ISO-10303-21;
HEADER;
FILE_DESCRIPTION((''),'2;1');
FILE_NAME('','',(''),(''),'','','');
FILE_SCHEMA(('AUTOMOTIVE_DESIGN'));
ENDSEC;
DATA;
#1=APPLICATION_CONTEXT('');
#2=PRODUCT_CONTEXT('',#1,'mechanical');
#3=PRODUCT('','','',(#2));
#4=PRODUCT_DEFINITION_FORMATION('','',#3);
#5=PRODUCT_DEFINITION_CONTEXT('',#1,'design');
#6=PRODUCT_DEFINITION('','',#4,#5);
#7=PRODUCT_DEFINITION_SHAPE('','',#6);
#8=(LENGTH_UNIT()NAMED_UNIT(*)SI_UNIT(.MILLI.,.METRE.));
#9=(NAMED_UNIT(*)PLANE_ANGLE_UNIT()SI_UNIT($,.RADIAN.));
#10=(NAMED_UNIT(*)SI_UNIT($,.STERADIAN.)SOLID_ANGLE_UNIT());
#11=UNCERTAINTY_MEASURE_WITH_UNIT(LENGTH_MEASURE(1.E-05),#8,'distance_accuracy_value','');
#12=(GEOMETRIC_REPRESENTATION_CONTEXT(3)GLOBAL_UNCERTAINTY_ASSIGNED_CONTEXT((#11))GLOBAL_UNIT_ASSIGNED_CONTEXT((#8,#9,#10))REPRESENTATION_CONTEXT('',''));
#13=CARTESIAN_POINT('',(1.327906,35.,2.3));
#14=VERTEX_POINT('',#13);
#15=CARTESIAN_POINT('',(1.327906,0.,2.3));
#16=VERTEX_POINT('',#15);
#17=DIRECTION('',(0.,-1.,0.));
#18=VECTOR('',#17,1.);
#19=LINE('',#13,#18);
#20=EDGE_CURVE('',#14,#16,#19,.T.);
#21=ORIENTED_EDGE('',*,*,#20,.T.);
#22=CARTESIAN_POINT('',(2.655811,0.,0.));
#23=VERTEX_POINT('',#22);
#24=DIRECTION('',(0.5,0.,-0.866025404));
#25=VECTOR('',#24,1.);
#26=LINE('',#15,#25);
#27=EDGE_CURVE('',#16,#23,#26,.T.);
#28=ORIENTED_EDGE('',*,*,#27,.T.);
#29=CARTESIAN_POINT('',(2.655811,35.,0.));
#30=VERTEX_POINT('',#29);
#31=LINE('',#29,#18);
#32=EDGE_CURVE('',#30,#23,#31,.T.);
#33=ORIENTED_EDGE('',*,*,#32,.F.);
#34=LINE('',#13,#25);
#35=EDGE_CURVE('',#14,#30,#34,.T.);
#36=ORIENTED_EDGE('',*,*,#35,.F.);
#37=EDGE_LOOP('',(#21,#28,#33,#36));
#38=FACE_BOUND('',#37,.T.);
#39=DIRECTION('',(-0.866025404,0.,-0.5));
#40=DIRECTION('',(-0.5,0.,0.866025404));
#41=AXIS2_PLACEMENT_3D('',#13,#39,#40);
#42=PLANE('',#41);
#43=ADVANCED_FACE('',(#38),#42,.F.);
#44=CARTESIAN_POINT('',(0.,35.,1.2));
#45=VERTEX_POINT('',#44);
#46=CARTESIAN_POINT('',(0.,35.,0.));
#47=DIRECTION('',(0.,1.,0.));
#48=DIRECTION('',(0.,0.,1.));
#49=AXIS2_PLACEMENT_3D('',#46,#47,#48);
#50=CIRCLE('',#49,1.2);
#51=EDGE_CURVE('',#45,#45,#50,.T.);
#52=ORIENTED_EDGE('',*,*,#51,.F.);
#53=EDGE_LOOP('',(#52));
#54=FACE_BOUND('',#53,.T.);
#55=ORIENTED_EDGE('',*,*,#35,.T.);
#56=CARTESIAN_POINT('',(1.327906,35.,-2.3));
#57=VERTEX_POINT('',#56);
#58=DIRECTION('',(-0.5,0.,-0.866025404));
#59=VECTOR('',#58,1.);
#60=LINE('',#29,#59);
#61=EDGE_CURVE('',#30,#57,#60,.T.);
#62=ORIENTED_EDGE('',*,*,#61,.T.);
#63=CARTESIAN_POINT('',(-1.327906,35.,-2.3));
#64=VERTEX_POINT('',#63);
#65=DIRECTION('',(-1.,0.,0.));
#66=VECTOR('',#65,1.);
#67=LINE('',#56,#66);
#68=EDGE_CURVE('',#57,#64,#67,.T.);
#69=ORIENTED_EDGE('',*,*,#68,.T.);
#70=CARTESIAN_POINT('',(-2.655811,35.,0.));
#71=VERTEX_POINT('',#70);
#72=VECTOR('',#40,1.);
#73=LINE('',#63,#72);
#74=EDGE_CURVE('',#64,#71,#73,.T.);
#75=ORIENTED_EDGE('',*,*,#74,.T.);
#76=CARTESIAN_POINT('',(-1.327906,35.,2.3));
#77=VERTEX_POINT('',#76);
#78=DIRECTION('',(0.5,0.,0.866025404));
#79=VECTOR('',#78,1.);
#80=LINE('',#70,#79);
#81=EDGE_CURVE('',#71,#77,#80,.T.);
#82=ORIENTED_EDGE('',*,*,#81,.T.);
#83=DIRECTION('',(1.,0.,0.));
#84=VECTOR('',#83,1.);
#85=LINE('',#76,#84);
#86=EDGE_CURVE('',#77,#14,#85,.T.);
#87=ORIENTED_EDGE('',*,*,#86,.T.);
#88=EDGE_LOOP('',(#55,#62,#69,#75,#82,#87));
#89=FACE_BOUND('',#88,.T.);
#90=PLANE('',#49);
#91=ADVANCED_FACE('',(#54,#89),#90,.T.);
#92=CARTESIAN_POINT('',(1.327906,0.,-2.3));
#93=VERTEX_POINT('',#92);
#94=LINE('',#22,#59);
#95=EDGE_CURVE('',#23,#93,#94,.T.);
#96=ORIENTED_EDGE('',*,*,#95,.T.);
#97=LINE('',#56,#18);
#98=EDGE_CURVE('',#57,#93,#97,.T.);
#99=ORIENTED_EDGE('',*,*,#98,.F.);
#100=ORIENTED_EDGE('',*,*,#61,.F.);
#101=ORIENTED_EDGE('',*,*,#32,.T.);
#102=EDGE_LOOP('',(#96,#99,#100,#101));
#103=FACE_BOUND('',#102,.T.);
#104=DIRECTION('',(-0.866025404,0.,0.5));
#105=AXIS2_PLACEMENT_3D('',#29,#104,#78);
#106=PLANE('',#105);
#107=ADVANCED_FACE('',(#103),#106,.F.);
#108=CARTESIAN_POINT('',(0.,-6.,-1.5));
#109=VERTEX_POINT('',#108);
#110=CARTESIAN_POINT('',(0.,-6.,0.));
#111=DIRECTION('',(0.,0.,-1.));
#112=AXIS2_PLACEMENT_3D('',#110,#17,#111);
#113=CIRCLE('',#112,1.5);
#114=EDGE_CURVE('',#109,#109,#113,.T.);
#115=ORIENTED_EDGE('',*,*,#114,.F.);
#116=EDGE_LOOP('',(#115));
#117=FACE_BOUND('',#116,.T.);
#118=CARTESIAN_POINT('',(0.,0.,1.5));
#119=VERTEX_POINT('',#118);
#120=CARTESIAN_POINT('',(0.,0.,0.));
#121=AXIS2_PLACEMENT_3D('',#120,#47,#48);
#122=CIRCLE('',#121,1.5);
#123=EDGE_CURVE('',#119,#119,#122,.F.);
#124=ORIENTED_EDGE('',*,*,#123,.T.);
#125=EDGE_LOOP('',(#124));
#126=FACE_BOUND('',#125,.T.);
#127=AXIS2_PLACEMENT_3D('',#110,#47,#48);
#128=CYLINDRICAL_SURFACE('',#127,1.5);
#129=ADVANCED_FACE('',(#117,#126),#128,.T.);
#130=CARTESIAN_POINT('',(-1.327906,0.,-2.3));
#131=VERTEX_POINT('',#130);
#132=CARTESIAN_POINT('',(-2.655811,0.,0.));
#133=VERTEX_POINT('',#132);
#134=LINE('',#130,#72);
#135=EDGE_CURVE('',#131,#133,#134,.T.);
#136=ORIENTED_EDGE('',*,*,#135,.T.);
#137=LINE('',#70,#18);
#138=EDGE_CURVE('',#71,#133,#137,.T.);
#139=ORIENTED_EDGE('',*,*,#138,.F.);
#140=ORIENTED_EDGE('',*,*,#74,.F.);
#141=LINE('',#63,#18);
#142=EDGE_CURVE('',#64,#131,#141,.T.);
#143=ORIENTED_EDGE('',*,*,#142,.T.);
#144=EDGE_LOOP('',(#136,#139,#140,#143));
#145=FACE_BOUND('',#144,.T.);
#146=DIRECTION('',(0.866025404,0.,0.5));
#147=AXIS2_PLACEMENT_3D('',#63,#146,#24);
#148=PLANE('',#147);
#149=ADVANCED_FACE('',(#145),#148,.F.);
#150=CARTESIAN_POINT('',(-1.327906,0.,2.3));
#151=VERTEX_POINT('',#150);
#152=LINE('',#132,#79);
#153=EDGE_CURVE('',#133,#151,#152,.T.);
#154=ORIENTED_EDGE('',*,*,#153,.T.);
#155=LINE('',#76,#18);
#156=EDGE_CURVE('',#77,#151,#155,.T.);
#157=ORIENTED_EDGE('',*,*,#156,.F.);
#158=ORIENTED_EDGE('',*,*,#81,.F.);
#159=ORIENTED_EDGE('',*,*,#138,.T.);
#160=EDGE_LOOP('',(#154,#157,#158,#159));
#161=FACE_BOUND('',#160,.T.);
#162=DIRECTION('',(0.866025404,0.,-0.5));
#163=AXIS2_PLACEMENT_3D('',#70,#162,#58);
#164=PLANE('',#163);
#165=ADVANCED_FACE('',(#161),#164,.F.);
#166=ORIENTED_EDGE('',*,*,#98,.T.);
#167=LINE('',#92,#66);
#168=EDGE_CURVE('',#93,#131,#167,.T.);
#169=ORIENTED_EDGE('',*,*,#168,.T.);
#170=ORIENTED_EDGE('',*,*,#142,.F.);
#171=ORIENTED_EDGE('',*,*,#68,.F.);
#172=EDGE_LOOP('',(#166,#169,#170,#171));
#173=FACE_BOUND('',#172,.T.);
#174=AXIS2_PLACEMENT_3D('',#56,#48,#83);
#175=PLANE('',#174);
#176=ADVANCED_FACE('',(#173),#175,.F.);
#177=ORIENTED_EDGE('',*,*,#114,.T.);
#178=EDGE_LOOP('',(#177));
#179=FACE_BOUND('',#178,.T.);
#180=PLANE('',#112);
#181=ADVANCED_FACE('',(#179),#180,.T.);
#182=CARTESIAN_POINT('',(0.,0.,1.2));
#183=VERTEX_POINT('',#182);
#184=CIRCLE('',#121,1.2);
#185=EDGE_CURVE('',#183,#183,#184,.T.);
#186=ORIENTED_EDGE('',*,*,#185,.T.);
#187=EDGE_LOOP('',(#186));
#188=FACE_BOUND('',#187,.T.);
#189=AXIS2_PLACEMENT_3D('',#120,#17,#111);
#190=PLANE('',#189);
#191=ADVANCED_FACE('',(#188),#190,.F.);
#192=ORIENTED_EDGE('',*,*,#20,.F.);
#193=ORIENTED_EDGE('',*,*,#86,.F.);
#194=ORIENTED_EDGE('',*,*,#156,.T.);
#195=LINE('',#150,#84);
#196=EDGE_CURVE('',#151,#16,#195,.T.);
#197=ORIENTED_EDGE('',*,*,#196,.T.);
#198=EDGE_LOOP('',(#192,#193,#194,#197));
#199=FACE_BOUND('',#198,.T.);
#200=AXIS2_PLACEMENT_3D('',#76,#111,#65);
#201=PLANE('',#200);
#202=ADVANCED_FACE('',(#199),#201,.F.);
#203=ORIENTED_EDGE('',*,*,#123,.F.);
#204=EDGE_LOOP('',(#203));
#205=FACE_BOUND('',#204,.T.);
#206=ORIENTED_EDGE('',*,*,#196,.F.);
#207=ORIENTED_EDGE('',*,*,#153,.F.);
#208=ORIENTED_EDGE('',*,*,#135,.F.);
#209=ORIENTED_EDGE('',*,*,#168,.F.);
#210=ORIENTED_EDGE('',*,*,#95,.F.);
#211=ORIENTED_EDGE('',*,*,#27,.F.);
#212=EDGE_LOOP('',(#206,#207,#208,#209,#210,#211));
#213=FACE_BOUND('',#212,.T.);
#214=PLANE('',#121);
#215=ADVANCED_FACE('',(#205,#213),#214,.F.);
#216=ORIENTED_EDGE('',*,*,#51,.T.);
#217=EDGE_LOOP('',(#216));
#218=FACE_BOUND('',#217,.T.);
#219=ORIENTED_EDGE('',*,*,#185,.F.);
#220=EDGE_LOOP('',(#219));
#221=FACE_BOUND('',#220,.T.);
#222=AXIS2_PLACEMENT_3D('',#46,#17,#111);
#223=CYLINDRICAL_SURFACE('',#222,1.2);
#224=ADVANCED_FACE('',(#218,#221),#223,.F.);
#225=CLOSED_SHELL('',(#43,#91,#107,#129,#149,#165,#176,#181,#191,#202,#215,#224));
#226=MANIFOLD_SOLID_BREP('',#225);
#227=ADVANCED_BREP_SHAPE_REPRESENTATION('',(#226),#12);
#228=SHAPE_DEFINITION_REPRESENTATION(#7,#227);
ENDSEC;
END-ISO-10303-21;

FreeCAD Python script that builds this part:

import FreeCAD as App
import Part
import Sketcher

V = App.Vector
Q = App.Units.Quantity


def add_polygon(sketch, points):
    """Adds a closed chain of lines whose ends are joined by coincident constraints."""
    first, n = sketch.GeometryCount, len(points)
    for a, b in zip(points, points[1:] + points[:1]):
        sketch.addGeometry(Part.LineSegment(App.Vector(*a, 0), App.Vector(*b, 0)), False)
    for i in range(n):
        sketch.addConstraint(Sketcher.Constraint("Coincident", first + i, 2, first + (i + 1) % n, 1))

doc = App.newDocument("Part")
body = doc.addObject("PartDesign::Body", "Body")

# Sketch on XZ plane
sketch1 = body.newObject("Sketcher::SketchObject", "Sketch")
sketch1.AttachmentSupport = (doc.getObject("XZ_Plane"), [""])
sketch1.MapMode = "FlatFace"
add_polygon(sketch1, [(2.7, 0), (1.3, -2.3), (-1.3, -2.3), (-2.7, 0), (-1.3, 2.3), (1.3, 2.3)])  # lines 0-5
sketch1.addGeometry(Part.Circle(V(0, 0, 0), V(0, 0, 1), 1.2), False)  # 6
sketch1.addConstraint([
    Sketcher.Constraint("Horizontal", 1),
    Sketcher.Constraint("Horizontal", 4),
    Sketcher.Constraint("Coincident", 6, 3, -1, 1),
    Sketcher.Constraint("Symmetric", 0, 2, 3, 2, -1, 1),
    Sketcher.Constraint("Symmetric", 2, 2, 5, 2, -1, 1),
    Sketcher.Constraint("PointOnObject", 2, 2, -1),
    Sketcher.Constraint("Parallel", 2, 5),
    Sketcher.Constraint("Vertical", 1, 2, 3, 2),
    Sketcher.Constraint("Diameter", 6, 2.4),
    Sketcher.Constraint("Angle", 0, Q("-120 deg")),
    Sketcher.Constraint("DistanceY", 0, 2, -1, 1, 2.3),
    Sketcher.Constraint("DistanceX", 1, 2, 1, 1, 2.655811),
])
pad1 = body.newObject("PartDesign::Pad", "Pad")
pad1.Profile = sketch1
pad1.Length = 35
pad1.Reversed = True

# Sketch on XZ plane
sketch2 = body.newObject("Sketcher::SketchObject", "Sketch001")
sketch2.AttachmentSupport = (doc.getObject("XZ_Plane"), [""])
sketch2.MapMode = "FlatFace"
sketch2.addGeometry(Part.Circle(V(0, 0, 0), V(0, 0, 1), 1.5), False)
sketch2.addConstraint([
    Sketcher.Constraint("Coincident", 0, 3, -1, 1),
    Sketcher.Constraint("Diameter", 0, 3.0),
])
pad2 = body.newObject("PartDesign::Pad", "Pad001")
pad2.Profile = sketch2
pad2.Length = 6

doc.recompute()
